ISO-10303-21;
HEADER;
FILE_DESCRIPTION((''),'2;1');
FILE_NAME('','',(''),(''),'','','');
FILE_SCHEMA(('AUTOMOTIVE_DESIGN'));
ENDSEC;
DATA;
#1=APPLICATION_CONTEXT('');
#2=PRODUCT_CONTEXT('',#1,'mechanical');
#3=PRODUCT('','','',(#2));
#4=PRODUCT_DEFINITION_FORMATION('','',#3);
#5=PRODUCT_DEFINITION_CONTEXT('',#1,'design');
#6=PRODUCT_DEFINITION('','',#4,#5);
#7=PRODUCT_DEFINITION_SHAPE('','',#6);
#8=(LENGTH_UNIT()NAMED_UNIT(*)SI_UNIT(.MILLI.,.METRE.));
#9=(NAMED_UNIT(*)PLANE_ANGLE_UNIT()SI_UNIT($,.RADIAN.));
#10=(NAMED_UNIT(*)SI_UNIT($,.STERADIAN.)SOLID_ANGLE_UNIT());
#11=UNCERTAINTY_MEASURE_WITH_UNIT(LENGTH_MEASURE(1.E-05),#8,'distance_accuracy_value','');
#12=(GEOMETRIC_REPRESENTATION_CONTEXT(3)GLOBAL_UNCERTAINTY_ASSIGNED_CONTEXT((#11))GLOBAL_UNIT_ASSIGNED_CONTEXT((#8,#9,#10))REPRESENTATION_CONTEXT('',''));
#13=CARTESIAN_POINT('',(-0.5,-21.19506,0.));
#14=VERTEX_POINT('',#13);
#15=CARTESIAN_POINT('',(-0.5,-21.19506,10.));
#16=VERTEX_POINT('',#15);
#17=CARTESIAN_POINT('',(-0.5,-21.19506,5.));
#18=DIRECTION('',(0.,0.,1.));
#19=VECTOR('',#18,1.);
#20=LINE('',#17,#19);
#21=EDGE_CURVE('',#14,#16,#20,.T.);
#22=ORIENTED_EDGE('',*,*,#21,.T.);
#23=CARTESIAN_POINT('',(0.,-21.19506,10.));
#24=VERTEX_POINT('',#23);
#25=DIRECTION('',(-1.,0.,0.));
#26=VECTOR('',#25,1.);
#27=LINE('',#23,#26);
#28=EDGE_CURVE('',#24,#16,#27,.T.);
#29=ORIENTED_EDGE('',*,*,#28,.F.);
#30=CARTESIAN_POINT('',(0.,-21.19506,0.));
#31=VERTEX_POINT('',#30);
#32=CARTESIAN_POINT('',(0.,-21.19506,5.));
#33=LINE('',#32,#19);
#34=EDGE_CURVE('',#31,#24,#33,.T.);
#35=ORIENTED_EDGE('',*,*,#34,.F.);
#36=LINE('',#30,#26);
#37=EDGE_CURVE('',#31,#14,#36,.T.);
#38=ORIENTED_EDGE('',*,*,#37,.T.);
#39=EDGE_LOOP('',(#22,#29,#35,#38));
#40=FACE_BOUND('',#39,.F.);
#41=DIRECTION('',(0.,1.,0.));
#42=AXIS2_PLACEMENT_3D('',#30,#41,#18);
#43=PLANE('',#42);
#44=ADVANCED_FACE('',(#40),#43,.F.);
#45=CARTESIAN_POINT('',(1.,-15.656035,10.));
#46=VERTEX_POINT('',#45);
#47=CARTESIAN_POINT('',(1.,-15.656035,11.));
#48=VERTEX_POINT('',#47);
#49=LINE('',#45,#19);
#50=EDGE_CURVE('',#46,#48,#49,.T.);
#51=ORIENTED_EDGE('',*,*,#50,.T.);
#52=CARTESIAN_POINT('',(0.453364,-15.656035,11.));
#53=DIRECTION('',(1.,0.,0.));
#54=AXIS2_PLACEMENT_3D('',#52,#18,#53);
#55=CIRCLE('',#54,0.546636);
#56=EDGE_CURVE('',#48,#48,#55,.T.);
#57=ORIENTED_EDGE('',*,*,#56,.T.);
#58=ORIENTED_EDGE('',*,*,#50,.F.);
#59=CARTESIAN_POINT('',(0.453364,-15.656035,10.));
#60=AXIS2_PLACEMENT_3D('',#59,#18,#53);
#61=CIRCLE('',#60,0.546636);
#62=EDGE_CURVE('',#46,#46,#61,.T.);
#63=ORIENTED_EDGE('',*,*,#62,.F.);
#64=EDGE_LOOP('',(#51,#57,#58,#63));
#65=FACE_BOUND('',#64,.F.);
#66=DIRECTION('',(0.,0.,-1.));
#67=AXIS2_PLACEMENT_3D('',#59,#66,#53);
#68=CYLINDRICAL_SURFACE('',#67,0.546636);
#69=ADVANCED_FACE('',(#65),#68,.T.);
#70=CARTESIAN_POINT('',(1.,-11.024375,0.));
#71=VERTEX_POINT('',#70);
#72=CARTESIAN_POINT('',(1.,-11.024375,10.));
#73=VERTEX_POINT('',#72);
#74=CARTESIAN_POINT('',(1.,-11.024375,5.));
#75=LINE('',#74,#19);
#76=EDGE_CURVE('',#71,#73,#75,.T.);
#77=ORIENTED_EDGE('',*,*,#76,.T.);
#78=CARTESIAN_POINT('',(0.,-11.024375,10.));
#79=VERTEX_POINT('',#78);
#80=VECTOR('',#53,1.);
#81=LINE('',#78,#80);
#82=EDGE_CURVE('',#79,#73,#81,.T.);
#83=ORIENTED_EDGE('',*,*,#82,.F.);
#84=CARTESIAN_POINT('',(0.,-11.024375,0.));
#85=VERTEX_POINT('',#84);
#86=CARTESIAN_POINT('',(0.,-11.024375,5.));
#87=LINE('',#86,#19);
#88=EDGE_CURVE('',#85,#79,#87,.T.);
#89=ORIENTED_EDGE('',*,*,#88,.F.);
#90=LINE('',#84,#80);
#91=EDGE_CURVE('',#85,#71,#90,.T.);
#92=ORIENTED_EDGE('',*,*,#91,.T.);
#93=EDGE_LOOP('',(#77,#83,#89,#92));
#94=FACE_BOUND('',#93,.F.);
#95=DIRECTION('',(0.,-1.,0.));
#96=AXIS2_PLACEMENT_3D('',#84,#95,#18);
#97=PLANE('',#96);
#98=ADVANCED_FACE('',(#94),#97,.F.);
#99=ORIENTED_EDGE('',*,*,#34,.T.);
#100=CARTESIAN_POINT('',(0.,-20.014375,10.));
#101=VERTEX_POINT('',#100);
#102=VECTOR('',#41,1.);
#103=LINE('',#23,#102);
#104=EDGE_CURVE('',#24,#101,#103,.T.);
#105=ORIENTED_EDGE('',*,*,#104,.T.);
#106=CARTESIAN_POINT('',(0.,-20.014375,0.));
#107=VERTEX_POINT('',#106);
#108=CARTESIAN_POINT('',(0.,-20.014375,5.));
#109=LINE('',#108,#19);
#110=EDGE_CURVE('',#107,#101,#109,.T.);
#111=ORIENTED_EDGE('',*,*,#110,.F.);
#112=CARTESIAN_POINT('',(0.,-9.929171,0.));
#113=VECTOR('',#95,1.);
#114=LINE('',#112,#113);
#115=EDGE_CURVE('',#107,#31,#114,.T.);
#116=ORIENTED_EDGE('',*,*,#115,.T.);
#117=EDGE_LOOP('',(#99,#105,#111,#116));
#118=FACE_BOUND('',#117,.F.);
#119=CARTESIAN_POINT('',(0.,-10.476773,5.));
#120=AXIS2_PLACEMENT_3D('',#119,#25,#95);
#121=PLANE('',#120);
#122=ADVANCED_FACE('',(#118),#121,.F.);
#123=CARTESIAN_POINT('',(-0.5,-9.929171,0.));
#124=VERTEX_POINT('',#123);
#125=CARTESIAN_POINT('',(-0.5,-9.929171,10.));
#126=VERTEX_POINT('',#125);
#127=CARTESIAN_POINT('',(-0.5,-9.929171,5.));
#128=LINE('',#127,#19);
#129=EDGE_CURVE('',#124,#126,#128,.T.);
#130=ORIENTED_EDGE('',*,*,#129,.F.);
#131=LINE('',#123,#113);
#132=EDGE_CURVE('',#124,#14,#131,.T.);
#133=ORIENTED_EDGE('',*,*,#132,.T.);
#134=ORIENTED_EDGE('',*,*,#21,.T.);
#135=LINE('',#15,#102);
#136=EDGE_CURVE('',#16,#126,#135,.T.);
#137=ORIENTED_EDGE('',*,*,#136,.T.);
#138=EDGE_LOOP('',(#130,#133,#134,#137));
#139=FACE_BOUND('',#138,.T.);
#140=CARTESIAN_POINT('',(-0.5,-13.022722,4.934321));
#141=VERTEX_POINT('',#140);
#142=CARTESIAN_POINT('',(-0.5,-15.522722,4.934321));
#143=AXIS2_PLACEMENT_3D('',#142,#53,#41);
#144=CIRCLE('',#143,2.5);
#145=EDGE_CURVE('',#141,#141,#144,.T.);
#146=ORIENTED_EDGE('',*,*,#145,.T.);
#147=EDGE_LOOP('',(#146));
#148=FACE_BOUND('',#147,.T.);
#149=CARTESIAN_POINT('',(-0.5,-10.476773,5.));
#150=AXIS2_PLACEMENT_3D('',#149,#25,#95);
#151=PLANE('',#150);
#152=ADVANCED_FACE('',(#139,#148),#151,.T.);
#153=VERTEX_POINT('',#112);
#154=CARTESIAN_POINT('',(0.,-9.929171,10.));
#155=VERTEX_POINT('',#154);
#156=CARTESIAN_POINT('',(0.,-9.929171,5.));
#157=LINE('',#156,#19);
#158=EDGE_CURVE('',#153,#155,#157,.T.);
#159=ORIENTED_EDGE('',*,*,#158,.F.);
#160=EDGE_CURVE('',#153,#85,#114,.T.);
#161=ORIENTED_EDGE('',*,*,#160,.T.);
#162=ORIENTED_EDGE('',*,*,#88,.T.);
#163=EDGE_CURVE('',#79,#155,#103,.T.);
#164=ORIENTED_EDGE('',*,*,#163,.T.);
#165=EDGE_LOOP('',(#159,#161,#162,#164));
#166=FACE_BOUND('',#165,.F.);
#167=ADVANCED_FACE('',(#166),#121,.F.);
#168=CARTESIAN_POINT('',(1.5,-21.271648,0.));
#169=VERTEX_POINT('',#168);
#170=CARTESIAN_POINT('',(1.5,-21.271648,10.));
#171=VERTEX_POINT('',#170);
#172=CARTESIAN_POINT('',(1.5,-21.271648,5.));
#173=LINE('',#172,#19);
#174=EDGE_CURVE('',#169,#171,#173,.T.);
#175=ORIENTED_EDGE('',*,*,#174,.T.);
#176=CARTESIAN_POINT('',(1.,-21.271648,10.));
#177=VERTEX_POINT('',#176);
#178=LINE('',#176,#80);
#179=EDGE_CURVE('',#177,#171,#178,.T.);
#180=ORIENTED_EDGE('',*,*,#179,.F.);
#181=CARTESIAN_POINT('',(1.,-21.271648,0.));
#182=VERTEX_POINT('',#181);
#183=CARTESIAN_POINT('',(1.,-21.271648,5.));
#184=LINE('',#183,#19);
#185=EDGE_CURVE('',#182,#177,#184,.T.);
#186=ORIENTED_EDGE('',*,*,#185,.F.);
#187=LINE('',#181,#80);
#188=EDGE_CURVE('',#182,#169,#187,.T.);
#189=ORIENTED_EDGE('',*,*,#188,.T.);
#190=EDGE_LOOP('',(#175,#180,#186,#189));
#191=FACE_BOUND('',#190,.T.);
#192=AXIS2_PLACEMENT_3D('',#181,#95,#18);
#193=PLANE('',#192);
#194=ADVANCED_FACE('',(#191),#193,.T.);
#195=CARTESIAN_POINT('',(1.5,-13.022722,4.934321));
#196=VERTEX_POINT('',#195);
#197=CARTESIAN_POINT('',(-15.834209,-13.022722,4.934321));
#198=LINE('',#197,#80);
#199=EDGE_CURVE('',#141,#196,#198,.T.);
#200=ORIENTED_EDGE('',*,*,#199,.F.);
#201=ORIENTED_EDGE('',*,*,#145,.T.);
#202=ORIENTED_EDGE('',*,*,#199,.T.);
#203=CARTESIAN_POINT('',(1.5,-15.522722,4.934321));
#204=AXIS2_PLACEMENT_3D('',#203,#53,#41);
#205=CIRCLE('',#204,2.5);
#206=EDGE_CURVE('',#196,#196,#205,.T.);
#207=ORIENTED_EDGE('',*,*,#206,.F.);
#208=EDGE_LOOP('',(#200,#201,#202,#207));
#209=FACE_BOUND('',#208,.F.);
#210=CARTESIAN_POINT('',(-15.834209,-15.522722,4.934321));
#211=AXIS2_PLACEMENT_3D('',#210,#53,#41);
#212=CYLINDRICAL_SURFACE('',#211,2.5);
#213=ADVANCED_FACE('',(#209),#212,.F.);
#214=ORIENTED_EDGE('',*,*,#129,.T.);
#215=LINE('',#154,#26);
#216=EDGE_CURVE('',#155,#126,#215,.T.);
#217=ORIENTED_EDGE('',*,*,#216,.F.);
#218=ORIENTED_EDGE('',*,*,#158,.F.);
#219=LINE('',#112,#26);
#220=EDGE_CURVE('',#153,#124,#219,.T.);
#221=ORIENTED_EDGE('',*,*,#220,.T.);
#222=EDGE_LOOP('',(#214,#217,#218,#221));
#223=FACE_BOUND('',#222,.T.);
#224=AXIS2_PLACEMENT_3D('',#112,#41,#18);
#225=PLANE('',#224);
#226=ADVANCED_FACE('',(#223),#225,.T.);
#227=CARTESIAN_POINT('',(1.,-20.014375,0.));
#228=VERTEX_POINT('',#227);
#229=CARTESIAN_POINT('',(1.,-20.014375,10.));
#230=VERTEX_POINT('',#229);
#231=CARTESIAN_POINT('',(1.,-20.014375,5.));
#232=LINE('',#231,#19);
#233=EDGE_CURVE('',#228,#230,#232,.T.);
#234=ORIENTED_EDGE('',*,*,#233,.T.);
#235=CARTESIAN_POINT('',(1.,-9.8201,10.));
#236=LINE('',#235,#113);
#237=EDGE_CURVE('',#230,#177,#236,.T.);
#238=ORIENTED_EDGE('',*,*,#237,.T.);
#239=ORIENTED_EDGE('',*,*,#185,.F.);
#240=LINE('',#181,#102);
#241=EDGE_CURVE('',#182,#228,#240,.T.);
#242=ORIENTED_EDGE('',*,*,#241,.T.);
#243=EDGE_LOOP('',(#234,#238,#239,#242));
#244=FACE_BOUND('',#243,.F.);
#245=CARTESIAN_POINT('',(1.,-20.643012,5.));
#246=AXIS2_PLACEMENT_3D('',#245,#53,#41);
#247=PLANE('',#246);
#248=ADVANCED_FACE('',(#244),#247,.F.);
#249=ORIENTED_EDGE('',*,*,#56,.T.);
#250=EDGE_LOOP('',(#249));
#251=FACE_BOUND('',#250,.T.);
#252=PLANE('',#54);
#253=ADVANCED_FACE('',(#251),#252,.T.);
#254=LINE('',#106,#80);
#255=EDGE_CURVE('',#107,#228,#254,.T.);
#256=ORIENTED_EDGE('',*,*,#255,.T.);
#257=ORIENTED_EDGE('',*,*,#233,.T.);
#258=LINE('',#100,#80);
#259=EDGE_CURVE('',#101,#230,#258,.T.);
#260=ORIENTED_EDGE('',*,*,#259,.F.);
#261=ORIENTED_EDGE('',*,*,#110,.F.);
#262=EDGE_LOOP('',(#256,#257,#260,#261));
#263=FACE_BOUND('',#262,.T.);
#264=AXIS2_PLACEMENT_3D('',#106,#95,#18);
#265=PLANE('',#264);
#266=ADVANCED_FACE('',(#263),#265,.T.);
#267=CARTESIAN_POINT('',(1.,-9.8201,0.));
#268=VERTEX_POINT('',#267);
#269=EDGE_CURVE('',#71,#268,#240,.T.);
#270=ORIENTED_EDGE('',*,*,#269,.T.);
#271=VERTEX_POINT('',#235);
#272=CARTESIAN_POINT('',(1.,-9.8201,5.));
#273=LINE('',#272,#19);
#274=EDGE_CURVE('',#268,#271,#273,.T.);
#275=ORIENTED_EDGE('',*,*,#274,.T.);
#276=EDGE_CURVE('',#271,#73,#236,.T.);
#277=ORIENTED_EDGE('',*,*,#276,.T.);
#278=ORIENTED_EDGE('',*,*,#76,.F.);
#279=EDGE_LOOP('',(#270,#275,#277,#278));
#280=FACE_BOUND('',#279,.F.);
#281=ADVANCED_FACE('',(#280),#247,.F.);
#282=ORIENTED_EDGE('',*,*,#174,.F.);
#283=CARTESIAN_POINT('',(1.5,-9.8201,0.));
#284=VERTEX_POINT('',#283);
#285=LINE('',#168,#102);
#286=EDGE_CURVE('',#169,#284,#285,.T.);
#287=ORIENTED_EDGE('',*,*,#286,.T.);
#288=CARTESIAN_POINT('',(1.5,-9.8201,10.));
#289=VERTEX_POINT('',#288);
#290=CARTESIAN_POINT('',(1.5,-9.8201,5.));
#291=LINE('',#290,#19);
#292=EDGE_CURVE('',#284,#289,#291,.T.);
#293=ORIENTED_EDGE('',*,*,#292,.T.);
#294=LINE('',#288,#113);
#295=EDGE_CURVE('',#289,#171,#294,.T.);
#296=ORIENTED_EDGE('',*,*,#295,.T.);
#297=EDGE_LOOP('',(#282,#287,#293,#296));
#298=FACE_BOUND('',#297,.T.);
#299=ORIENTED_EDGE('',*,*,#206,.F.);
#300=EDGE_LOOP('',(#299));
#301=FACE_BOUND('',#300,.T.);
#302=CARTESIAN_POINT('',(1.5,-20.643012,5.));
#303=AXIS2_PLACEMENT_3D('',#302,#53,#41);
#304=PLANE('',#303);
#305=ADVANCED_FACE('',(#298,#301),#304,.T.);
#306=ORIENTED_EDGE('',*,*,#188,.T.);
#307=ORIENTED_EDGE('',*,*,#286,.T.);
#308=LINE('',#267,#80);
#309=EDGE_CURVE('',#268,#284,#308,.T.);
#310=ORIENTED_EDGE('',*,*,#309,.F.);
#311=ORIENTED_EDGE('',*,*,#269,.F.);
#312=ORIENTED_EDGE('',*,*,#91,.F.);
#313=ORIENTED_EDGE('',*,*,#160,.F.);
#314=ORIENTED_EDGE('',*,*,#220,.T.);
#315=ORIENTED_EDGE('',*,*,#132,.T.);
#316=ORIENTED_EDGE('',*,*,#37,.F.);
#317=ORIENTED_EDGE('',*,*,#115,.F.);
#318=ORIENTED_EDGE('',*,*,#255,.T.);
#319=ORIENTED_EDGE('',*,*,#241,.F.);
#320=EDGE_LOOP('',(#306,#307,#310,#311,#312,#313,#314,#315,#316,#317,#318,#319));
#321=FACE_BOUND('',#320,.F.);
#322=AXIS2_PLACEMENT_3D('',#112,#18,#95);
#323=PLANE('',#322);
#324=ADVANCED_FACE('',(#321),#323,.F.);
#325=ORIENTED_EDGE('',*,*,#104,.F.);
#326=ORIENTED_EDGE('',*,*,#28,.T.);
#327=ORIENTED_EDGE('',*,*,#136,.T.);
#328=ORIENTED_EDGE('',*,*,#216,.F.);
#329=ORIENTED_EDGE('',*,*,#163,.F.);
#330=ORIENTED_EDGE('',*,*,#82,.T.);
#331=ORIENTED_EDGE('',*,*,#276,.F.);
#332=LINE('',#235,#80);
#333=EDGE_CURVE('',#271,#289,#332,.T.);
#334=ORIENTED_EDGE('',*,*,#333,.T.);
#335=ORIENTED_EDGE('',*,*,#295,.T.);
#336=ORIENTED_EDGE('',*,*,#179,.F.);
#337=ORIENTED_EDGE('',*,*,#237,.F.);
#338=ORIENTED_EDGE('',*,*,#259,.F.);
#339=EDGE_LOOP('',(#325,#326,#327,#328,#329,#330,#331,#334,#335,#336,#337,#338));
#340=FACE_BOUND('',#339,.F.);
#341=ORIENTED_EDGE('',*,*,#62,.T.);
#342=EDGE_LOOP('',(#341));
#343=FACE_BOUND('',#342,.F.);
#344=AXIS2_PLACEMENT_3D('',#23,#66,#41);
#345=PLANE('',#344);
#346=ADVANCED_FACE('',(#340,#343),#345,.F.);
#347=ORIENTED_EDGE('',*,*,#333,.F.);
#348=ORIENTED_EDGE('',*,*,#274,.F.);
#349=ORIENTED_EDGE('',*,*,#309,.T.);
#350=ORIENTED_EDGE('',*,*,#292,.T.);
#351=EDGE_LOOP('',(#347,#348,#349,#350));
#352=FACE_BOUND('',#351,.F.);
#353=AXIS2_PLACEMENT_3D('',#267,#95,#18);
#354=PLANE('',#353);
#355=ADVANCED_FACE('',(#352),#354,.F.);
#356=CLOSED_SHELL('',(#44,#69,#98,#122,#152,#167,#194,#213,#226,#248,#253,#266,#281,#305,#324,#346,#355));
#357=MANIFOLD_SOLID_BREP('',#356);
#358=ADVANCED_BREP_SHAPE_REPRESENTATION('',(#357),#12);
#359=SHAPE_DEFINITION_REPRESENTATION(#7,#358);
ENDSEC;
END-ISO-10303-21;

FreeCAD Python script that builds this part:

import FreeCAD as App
import Part
import Sketcher

V = App.Vector


def add_polygon(sketch, points):
    """Adds a closed chain of lines whose ends are joined by coincident constraints."""
    first, n = sketch.GeometryCount, len(points)
    for a, b in zip(points, points[1:] + points[:1]):
        sketch.addGeometry(Part.LineSegment(App.Vector(*a, 0), App.Vector(*b, 0)), False)
    for i in range(n):
        sketch.addConstraint(Sketcher.Constraint("Coincident", first + i, 2, first + (i + 1) % n, 1))

doc = App.newDocument("Part")
body = doc.addObject("PartDesign::Body", "Body")

# Sketch on YZ plane
sketch1 = doc.addObject("Sketcher::SketchObject", "Sketch")
body.addObject(sketch1)
sketch1.AttachmentSupport = (doc.YZ_Plane, [""])
sketch1.MapMode = "FlatFace"
add_polygon(sketch1, [(-20, 10), (-20, 0), (-11, 0), (-11, 10)])  # lines 0-3
sketch1.addConstraint([
    Sketcher.Constraint("Vertical", 0),
    Sketcher.Constraint("Horizontal", 1),
    Sketcher.Constraint("Vertical", 2),
    Sketcher.Constraint("Horizontal", 3),
    Sketcher.Constraint("PointOnObject", 0, 2, -1),
    Sketcher.Constraint("DistanceY", 0, 2, 0, 1, 10.0),
    Sketcher.Constraint("DistanceX", 1, 1, 1, 2, 8.99),
    Sketcher.Constraint("DistanceX", 0, 2, -1, 1, 20.014375),
])
pad1 = doc.addObject("PartDesign::Pad", "Pad")
body.addObject(pad1)
pad1.Profile = sketch1
pad1.Length = 1

# Sketch on YZ plane
sketch2 = doc.addObject("Sketcher::SketchObject", "Sketch001")
body.addObject(sketch2)
sketch2.AttachmentSupport = (doc.YZ_Plane, [""])
sketch2.MapMode = "FlatFace"
sketch2.AttachmentOffset = App.Placement(V(0, 0, 1), App.Rotation())
add_polygon(sketch2, [(-21, 10), (-21, 0), (-10, 0), (-10, 10)])  # lines 0-3
sketch2.addConstraint([
    Sketcher.Constraint("Vertical", 0),
    Sketcher.Constraint("Horizontal", 1),
    Sketcher.Constraint("Vertical", 2),
    Sketcher.Constraint("Horizontal", 3),
    Sketcher.Constraint("PointOnObject", 0, 2, -1),
    Sketcher.Constraint("DistanceY", 0, 2, 0, 1, 10.0),
    Sketcher.Constraint("DistanceX", 1, 2, -1, 1, 9.8201),
    Sketcher.Constraint("DistanceX", 1, 1, 1, 2, 11.451548),
])
pad2 = doc.addObject("PartDesign::Pad", "Pad001")
body.addObject(pad2)
pad2.Profile = sketch2
pad2.Length = 0.5

# Sketch on YZ plane
sketch3 = doc.addObject("Sketcher::SketchObject", "Sketch002")
body.addObject(sketch3)
sketch3.AttachmentSupport = (doc.YZ_Plane, [""])
sketch3.MapMode = "FlatFace"
add_polygon(sketch3, [(-10, 10), (-10, 0), (-21, 0), (-21, 10)])  # lines 0-3
sketch3.addConstraint([
    Sketcher.Constraint("Vertical", 0),
    Sketcher.Constraint("Horizontal", 1),
    Sketcher.Constraint("Vertical", 2),
    Sketcher.Constraint("Horizontal", 3),
    Sketcher.Constraint("PointOnObject", 0, 2, -1),
    Sketcher.Constraint("DistanceY", 0, 2, 0, 1, 10.0),
    Sketcher.Constraint("DistanceX", 1, 2, 1, 1, 11.265889),
    Sketcher.Constraint("DistanceX", 0, 2, -1, 1, 9.929171),
])
pad3 = doc.addObject("PartDesign::Pad", "Pad002")
body.addObject(pad3)
pad3.Profile = sketch3
pad3.Length = 0.5
pad3.Reversed = True

# Sketch on YZ plane
sketch4 = doc.addObject("Sketcher::SketchObject", "Sketch003")
body.addObject(sketch4)
sketch4.AttachmentSupport = (doc.YZ_Plane, [""])
sketch4.MapMode = "FlatFace"
sketch4.AttachmentOffset = App.Placement(V(0, 0, -0.5), App.Rotation())
sketch4.addGeometry(Part.Circle(V(-15.5, 4.9, 0), V(0, 0, 1), 2.5), False)
sketch4.addConstraint([
    Sketcher.Constraint("Diameter", 0, 5.0),
    Sketcher.Constraint("DistanceY", -1, 1, 0, 3, 4.934321),
    Sketcher.Constraint("DistanceX", 0, 3, -1, 1, 15.522722),
])
doc.recompute()
hole = doc.addObject("PartDesign::Hole", "Hole")
body.addObject(hole)
hole.Profile = sketch4
hole.ThreadType = "None"
hole.Diameter = 5
hole.DepthType = "ThroughAll"
hole.Reversed = True

# Sketch on XY plane
sketch5 = doc.addObject("Sketcher::SketchObject", "Sketch004")
body.addObject(sketch5)
sketch5.AttachmentSupport = (doc.XY_Plane, [""])
sketch5.MapMode = "FlatFace"
sketch5.AttachmentOffset = App.Placement(V(0, 0, 10), App.Rotation())
sketch5.addGeometry(Part.Circle(V(0.5, -15.7, 0), V(0, 0, 1), 0.5), False)
sketch5.addConstraint([
    Sketcher.Constraint("Diameter", 0, 1.093271),
    Sketcher.Constraint("DistanceX", -1, 1, 0, 3, 0.453364),
    Sketcher.Constraint("DistanceY", 0, 3, -1, 1, 15.656035),
])
pad4 = doc.addObject("PartDesign::Pad", "Pad003")
body.addObject(pad4)
pad4.Profile = sketch5
pad4.Length = 1

doc.recompute()
